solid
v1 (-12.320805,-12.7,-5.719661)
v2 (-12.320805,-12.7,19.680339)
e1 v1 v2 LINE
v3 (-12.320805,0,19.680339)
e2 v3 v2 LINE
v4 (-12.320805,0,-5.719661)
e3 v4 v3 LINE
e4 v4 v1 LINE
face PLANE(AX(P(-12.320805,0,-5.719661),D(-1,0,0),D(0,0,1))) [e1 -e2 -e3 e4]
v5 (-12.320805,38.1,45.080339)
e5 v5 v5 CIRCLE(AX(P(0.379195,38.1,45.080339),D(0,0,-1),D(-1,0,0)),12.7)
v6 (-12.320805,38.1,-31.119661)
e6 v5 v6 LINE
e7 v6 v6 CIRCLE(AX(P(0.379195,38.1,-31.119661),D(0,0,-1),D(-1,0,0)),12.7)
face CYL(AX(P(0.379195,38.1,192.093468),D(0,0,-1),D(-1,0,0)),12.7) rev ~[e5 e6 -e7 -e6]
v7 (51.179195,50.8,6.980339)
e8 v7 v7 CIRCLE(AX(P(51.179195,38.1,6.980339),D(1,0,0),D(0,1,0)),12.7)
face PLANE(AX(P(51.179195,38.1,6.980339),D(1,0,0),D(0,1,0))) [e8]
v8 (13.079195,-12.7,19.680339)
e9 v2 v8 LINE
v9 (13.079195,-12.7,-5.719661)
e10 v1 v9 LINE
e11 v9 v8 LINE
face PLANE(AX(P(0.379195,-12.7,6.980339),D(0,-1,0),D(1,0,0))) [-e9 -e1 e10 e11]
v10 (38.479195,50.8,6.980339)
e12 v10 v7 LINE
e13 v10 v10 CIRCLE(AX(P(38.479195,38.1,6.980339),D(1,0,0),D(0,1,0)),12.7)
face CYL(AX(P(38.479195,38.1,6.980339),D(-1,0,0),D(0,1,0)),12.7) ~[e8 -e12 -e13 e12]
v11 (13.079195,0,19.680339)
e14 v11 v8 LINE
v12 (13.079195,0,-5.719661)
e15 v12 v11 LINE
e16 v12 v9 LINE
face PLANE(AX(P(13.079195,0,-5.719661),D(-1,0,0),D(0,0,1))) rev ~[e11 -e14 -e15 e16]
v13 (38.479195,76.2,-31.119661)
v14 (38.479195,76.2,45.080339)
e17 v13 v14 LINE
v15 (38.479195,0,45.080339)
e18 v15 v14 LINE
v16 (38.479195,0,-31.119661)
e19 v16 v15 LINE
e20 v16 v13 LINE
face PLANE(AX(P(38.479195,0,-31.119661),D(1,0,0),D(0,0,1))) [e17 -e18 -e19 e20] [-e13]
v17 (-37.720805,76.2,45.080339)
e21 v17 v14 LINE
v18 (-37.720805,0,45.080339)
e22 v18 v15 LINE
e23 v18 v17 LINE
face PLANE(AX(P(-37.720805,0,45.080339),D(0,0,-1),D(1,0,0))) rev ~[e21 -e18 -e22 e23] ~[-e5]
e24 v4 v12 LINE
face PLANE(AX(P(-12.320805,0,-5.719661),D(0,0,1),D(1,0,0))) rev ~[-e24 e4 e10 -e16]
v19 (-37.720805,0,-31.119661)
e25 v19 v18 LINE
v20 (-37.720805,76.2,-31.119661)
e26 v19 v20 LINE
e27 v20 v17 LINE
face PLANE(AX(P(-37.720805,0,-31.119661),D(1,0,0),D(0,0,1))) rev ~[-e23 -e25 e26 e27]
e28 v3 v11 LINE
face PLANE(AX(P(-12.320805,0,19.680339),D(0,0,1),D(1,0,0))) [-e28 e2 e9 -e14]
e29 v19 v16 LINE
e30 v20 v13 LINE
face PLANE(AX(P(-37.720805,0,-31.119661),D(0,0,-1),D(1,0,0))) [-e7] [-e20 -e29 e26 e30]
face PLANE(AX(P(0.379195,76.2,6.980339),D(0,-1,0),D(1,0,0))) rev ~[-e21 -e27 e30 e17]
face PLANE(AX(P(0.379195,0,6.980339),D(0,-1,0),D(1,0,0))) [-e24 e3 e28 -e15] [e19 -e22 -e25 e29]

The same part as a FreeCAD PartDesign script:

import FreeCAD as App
import Part
import Sketcher

V = App.Vector
Q = App.Units.Quantity

doc = App.newDocument("Part")
body = doc.addObject("PartDesign::Body", "Body")

# Sketch on XZ plane
sketch1 = body.newObject("Sketcher::SketchObject", "Sketch")
sketch1.AttachmentSupport = (doc.getObject("XZ_Plane"), [""])
sketch1.MapMode = "FlatFace"
sketch1.addGeometry([
    Part.LineSegment(V(-38, 45, 0), V(-38, -31, 0)),
    Part.LineSegment(V(-38, -31, 0), V(38, -31, 0)),
    Part.LineSegment(V(38, -31, 0), V(38, 45, 0)),
    Part.LineSegment(V(38, 45, 0), V(-38, 45, 0)),
], False)
sketch1.addConstraint([
    Sketcher.Constraint("Coincident", 0, 2, 1, 1),
    Sketcher.Constraint("Coincident", 1, 2, 2, 1),
    Sketcher.Constraint("Coincident", 2, 2, 3, 1),
    Sketcher.Constraint("Coincident", 3, 2, 0, 1),
    Sketcher.Constraint("Vertical", 0),
    Sketcher.Constraint("Horizontal", 1),
    Sketcher.Constraint("Vertical", 2),
    Sketcher.Constraint("Horizontal", 3),
    Sketcher.Constraint("Equal", 3, 0),
    Sketcher.Constraint("DistanceX", 1, 1, 1, 2, Q("3 in")),
    Sketcher.Constraint("DistanceY", 0, 2, -1, 1, 31.119661),
    Sketcher.Constraint("DistanceX", 0, 2, -1, 1, 37.720805),
])
pad1 = body.newObject("PartDesign::Pad", "Pad")
pad1.Profile = sketch1
pad1.Length = Q("3 in")
pad1.Reversed = True

# Sketch on XZ plane
sketch2 = body.newObject("Sketcher::SketchObject", "Sketch001")
sketch2.AttachmentSupport = (doc.getObject("XZ_Plane"), [""])
sketch2.MapMode = "FlatFace"
sketch2.addGeometry([
    Part.LineSegment(V(-12, 20, 0), V(-12, -6, 0)),
    Part.LineSegment(V(-12, -6, 0), V(13, -6, 0)),
    Part.LineSegment(V(13, -6, 0), V(13, 20, 0)),
    Part.LineSegment(V(13, 20, 0), V(-12, 20, 0)),
], False)
sketch2.addConstraint([
    Sketcher.Constraint("Coincident", 0, 2, 1, 1),
    Sketcher.Constraint("Coincident", 1, 2, 2, 1),
    Sketcher.Constraint("Coincident", 2, 2, 3, 1),
    Sketcher.Constraint("Coincident", 3, 2, 0, 1),
    Sketcher.Constraint("Vertical", 0),
    Sketcher.Constraint("Horizontal", 1),
    Sketcher.Constraint("Vertical", 2),
    Sketcher.Constraint("Horizontal", 3),
    Sketcher.Constraint("Equal", 3, 0),
    Sketcher.Constraint("DistanceX", 1, 1, 1, 2, Q("1 in")),
    Sketcher.Constraint("DistanceY", 0, 2, -1, 1, 5.719661),
    Sketcher.Constraint("DistanceX", 0, 2, -1, 1, 12.320805),
])
pad2 = body.newObject("PartDesign::Pad", "Pad001")
pad2.Profile = sketch2
pad2.Length = Q("0.5 in")

# Sketch on YZ plane
sketch3 = body.newObject("Sketcher::SketchObject", "Sketch002")
sketch3.AttachmentSupport = (doc.getObject("YZ_Plane"), [""])
sketch3.MapMode = "FlatFace"
sketch3.AttachmentOffset = App.Placement(V(0, 0, 38.479195), App.Rotation())
sketch3.addGeometry(Part.Circle(V(38, 7, 0), V(0, 0, 1), 13), False)
sketch3.addConstraint([
    Sketcher.Constraint("Diameter", 0, Q("1 in")),
    Sketcher.Constraint("DistanceX", -1, 1, 0, 3, Q("1.5 in")),
    Sketcher.Constraint("DistanceY", -1, 1, 0, 3, 6.980339),
])
pad3 = body.newObject("PartDesign::Pad", "Pad002")
pad3.Profile = sketch3
pad3.Length = Q("0.5 in")

# Sketch on XY plane
sketch4 = body.newObject("Sketcher::SketchObject", "Sketch003")
sketch4.AttachmentSupport = (doc.getObject("XY_Plane"), [""])
sketch4.MapMode = "FlatFace"
sketch4.AttachmentOffset = App.Placement(V(0, 0, 45.080339), App.Rotation())
sketch4.addGeometry(Part.Circle(V(0, 38, 0), V(0, 0, 1), 13), False)
sketch4.addConstraint([
    Sketcher.Constraint("Diameter", 0, Q("1 in")),
    Sketcher.Constraint("DistanceY", -1, 1, 0, 3, Q("1.5 in")),
    Sketcher.Constraint("DistanceX", -1, 1, 0, 3, 0.379195),
])
doc.recompute()
hole = body.newObject("PartDesign::Hole", "Hole")
hole.Profile = sketch4
hole.ThreadType = "None"
hole.Diameter = Q("1 in")
hole.DepthType = "ThroughAll"

doc.recompute()
